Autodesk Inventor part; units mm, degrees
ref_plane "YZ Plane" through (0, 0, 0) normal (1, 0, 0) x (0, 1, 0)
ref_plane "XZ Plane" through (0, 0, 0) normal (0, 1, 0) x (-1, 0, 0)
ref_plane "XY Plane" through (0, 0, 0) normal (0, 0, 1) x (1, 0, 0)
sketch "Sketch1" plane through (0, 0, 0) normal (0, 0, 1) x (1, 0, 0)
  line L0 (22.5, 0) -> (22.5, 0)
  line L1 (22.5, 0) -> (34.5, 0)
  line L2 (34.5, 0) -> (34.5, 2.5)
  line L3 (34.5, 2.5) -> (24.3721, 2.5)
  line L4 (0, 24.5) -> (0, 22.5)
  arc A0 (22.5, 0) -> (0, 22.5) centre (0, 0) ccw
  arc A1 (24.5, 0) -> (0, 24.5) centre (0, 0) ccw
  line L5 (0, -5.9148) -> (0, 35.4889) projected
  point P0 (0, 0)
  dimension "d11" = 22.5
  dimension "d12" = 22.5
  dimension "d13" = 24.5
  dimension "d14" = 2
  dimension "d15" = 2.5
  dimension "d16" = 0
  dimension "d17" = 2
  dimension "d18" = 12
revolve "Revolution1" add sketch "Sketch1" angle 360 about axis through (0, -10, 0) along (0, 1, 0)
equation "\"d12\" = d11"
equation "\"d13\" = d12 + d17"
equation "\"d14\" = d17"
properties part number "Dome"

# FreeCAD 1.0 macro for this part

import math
import FreeCAD as App
import Part
import Sketcher
from FreeCAD import Vector
Q = App.Units.Quantity

doc = App.newDocument("Part")
body = doc.addObject("PartDesign::Body", "Body")

# Sketch on XY plane
sketch1 = body.newObject("Sketcher::SketchObject", "Sketch")
sketch1.AttachmentSupport = (doc.getObject("XY_Plane"), [""])
sketch1.MapMode = "FlatFace"
sketch1.addGeometry(Part.ArcOfCircle(Part.Circle(Vector(0, 0, 0), Vector(0, 0, 1), 22.5), math.radians(0), math.radians(90)), False)
sketch1.addGeometry(Part.LineSegment(Vector(22.5, 0, 0), Vector(34.5, 0, 0)), False)
sketch1.addGeometry(Part.LineSegment(Vector(34.5, 0, 0), Vector(34.5, 2.5, 0)), False)
sketch1.addGeometry(Part.LineSegment(Vector(34.5, 2.5, 0), Vector(24.4, 2.5, 0)), False)
sketch1.addGeometry(Part.ArcOfCircle(Part.Circle(Vector(0, 0, 0), Vector(0, 0, 1), 24.5), math.radians(6), math.radians(90)), False)
sketch1.addGeometry(Part.LineSegment(Vector(0, 24.5, 0), Vector(0, 22.5, 0)), False)
sketch1.addConstraint(Sketcher.Constraint("Coincident", 0, 1, 1, 1))
sketch1.addConstraint(Sketcher.Constraint("Coincident", 1, 2, 2, 1))
sketch1.addConstraint(Sketcher.Constraint("Coincident", 2, 2, 3, 1))
sketch1.addConstraint(Sketcher.Constraint("Coincident", 3, 2, 4, 1))
sketch1.addConstraint(Sketcher.Constraint("Coincident", 4, 2, 5, 1))
sketch1.addConstraint(Sketcher.Constraint("Coincident", 5, 2, 0, 2))
sketch1.addConstraint(Sketcher.Constraint("Horizontal", 1))
sketch1.addConstraint(Sketcher.Constraint("Vertical", 2))
sketch1.addConstraint(Sketcher.Constraint("Horizontal", 3))
sketch1.addConstraint(Sketcher.Constraint("Vertical", 5))
sketch1.addConstraint(Sketcher.Constraint("Coincident", 0, 3, -1, 1))
sketch1.addConstraint(Sketcher.Constraint("Coincident", 4, 3, -1, 1))
sketch1.addConstraint(Sketcher.Constraint("PointOnObject", 0, 1, -1))
sketch1.addConstraint(Sketcher.Constraint("PointOnObject", 4, 2, -2))
sketch1.addConstraint(Sketcher.Constraint("Radius", 0, Q("22.5 mm")))
sketch1.addConstraint(Sketcher.Constraint("Radius", 4, Q("24.5 mm")))
sketch1.addConstraint(Sketcher.Constraint("DistanceX", 1, 1, 1, 2, Q("12 mm")))
sketch1.addConstraint(Sketcher.Constraint("DistanceY", 2, 1, 2, 2, Q("2.5 mm")))
revolution = body.newObject("PartDesign::Revolution", "Revolution")
revolution.Profile = sketch1
revolution.ReferenceAxis = (sketch1, ["V_Axis"])
revolution.Angle = 360

doc.recompute()
